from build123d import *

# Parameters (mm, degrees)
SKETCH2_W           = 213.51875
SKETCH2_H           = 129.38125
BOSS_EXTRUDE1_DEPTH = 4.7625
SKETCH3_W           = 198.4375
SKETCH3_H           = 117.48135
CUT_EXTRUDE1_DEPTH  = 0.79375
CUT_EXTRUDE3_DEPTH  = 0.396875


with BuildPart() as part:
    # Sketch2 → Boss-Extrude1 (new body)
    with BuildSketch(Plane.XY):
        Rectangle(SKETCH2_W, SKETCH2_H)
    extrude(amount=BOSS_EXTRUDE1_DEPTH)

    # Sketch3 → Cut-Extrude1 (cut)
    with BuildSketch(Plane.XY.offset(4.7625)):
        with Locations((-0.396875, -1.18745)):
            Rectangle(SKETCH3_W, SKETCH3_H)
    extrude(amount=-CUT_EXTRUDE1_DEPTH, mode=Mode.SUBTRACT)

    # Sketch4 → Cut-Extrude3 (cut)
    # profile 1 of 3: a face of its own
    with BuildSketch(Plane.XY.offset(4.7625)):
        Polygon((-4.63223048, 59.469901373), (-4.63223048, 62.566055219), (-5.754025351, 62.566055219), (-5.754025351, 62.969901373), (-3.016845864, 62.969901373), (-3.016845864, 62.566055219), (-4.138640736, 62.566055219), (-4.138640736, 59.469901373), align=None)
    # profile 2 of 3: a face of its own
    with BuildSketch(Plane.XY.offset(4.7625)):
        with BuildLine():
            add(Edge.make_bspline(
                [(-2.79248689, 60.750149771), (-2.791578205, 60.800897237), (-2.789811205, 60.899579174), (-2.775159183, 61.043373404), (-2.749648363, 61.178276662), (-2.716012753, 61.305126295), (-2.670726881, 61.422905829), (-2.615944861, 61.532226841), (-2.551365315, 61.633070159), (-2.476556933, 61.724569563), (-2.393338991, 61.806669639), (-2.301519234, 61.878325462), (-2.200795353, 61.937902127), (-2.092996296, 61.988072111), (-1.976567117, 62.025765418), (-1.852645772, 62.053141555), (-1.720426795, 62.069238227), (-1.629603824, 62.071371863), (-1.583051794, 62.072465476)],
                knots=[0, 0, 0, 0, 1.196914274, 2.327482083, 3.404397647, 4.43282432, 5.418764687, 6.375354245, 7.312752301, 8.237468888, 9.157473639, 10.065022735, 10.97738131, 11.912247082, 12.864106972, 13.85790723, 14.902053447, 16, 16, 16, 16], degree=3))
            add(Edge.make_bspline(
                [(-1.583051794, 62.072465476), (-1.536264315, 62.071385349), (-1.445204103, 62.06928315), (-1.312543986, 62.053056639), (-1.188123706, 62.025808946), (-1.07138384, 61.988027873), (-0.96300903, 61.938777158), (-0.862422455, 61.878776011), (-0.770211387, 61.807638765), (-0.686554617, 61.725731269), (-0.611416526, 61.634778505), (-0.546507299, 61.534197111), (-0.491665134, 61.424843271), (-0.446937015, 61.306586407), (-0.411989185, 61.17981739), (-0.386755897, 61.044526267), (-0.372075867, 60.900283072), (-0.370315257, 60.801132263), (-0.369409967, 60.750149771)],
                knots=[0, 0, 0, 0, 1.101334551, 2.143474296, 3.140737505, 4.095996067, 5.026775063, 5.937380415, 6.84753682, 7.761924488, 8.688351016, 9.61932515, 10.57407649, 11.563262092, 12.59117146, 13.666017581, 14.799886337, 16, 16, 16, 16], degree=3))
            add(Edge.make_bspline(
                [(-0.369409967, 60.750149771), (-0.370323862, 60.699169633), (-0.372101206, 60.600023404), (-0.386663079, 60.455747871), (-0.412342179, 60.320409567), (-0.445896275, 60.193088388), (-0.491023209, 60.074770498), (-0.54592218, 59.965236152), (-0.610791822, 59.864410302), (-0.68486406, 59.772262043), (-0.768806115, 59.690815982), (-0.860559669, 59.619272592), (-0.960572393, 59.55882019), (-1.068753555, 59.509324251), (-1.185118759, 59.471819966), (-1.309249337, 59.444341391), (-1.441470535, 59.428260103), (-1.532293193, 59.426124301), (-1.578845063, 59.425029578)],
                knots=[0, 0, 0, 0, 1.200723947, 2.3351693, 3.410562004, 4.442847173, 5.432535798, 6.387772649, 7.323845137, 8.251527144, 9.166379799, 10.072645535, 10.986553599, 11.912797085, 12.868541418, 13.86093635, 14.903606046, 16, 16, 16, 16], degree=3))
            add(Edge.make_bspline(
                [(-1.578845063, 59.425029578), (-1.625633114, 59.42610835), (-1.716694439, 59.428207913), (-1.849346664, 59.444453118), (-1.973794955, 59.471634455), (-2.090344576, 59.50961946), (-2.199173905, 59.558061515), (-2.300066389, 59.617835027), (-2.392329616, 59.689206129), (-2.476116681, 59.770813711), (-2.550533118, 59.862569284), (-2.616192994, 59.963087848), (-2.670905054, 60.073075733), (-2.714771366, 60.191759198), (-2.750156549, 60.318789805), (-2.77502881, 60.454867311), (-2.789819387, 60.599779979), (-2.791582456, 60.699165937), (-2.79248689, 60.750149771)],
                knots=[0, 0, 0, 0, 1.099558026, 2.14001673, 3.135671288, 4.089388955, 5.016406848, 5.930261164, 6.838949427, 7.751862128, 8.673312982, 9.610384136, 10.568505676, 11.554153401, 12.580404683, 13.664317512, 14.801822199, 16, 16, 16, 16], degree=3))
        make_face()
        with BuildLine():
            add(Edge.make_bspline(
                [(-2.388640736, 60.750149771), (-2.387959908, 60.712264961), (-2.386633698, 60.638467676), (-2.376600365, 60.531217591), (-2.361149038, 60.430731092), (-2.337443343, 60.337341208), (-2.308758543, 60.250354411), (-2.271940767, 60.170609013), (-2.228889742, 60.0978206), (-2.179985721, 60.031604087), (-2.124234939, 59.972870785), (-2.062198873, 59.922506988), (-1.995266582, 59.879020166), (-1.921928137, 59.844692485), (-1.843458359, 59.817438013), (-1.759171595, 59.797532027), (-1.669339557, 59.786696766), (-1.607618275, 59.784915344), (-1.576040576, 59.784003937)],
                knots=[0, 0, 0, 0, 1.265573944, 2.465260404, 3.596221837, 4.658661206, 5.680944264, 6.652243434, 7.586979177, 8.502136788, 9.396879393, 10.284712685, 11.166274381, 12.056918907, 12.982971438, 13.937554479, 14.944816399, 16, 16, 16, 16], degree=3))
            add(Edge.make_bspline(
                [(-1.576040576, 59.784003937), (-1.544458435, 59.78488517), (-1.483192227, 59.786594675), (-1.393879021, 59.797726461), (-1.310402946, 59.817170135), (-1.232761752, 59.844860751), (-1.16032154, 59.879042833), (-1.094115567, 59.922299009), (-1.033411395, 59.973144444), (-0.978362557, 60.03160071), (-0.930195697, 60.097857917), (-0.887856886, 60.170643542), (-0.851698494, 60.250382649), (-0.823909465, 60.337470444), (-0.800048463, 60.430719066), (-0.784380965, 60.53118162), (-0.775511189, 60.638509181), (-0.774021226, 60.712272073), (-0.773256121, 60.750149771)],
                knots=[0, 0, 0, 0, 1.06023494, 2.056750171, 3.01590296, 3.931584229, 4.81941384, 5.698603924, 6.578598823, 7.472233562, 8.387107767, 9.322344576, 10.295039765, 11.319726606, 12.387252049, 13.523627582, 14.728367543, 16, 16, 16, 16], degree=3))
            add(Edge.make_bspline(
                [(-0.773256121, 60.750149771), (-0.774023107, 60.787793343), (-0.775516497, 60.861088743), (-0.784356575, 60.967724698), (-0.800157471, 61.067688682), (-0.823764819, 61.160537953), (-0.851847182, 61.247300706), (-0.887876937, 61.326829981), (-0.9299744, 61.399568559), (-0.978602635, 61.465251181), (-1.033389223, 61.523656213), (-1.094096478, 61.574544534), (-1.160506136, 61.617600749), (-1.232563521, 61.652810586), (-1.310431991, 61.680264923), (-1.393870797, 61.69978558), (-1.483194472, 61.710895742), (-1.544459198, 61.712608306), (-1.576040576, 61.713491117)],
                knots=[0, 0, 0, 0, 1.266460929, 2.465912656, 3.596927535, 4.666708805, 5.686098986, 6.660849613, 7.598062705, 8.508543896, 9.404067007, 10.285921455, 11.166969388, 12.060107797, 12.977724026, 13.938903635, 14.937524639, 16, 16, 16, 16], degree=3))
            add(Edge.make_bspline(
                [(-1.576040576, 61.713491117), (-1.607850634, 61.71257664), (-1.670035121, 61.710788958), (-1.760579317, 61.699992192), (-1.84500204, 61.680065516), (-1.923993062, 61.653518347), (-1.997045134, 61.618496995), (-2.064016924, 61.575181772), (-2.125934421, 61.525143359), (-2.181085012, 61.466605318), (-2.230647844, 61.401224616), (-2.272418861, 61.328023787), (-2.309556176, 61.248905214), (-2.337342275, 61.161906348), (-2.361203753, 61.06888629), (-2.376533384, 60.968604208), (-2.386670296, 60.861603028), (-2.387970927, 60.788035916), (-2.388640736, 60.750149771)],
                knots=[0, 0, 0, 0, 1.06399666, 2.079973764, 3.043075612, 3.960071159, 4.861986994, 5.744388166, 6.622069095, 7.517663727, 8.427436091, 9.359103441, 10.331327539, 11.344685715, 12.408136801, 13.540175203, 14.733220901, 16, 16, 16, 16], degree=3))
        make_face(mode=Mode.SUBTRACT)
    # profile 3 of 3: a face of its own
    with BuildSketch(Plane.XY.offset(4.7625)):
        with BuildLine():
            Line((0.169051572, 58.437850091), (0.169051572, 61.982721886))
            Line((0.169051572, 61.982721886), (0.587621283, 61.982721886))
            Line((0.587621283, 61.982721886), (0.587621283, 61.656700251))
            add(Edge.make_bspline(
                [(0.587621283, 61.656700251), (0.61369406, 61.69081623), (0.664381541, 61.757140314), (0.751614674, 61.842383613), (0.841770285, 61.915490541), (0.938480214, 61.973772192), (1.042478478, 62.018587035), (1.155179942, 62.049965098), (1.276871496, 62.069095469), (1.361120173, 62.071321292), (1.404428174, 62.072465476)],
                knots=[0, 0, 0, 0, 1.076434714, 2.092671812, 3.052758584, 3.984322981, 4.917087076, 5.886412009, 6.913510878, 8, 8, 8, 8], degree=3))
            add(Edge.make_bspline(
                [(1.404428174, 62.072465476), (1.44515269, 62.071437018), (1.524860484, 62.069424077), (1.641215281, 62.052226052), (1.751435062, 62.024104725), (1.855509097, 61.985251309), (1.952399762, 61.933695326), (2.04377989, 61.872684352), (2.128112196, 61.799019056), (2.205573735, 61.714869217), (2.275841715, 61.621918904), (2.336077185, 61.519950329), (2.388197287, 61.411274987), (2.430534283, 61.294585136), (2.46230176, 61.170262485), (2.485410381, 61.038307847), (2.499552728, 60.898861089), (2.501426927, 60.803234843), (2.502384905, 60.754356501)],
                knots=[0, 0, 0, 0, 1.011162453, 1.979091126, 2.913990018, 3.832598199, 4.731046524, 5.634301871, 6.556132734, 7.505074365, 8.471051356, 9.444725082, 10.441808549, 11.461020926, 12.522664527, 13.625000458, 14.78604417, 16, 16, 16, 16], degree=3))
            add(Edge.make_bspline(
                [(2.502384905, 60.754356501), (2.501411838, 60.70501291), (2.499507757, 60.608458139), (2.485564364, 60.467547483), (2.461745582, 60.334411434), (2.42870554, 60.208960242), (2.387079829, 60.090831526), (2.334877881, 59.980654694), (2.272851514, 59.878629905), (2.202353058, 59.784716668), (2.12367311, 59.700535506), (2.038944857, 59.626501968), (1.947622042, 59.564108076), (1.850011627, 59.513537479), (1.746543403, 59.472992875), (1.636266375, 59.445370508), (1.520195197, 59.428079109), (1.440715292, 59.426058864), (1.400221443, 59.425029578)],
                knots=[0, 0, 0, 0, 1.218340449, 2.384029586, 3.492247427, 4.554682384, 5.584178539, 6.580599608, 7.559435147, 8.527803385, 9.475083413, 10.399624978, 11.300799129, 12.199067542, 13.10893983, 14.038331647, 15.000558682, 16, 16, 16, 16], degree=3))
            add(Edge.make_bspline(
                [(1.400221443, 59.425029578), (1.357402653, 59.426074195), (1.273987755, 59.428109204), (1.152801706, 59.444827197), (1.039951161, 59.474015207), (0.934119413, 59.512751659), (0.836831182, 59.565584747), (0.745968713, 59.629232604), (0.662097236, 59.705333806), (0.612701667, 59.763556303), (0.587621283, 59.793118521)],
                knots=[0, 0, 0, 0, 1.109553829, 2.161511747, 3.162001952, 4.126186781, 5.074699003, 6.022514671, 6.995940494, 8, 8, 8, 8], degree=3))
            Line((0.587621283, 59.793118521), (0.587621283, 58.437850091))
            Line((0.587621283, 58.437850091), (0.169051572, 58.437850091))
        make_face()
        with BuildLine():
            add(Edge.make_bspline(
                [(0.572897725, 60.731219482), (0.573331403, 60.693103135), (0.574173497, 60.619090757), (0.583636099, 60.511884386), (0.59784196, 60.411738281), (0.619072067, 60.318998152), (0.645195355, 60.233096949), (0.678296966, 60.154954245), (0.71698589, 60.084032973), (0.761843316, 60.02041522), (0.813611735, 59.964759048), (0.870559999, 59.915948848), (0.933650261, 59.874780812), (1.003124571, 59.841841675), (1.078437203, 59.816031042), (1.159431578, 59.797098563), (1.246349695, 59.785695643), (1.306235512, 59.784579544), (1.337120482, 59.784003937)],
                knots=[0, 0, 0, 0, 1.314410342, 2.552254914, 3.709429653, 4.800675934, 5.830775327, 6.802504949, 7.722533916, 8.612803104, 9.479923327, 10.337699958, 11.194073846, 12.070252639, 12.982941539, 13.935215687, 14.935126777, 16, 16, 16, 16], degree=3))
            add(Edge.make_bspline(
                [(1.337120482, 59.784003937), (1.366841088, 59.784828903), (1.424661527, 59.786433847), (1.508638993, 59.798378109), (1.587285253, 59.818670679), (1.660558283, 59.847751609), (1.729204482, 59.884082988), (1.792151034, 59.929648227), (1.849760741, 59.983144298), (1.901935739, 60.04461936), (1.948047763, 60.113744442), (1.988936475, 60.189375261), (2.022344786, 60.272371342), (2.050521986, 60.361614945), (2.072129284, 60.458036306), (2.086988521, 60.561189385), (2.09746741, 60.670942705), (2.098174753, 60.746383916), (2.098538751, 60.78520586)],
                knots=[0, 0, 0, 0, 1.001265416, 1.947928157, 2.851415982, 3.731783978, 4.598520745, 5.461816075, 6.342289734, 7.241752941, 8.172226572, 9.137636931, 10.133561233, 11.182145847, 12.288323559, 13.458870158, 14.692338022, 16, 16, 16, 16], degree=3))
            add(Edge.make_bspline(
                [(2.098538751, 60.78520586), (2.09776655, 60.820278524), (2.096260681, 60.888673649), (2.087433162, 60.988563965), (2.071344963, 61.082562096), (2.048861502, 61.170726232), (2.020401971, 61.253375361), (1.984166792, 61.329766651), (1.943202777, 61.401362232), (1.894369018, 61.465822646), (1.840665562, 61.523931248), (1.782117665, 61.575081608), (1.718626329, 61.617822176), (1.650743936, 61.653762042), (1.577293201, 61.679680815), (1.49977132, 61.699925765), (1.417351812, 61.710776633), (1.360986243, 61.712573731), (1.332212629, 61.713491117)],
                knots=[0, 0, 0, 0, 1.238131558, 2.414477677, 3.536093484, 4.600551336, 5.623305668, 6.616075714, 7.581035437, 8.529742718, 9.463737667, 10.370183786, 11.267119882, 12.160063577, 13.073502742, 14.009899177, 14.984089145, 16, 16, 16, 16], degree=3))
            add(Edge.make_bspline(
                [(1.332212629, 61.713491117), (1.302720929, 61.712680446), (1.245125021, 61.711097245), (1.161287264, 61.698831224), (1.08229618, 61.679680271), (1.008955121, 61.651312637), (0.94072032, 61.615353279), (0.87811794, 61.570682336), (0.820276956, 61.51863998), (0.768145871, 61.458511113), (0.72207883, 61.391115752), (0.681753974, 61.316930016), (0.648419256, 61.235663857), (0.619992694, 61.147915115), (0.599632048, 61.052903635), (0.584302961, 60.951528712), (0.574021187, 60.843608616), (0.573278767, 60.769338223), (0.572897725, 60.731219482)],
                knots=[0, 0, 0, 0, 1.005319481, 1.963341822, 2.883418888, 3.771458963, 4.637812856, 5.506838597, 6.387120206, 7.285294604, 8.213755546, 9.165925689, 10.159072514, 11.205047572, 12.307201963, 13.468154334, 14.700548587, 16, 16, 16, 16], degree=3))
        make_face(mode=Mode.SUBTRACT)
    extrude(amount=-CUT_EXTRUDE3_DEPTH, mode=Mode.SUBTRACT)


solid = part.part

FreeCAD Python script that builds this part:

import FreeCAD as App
import Part
import Sketcher
Q = App.Units.Quantity


def add_polygon(sketch, points):
    """Adds a closed chain of lines whose ends are joined by coincident constraints."""
    first, n = sketch.GeometryCount, len(points)
    for a, b in zip(points, points[1:] + points[:1]):
        sketch.addGeometry(Part.LineSegment(App.Vector(*a, 0), App.Vector(*b, 0)), False)
    for i in range(n):
        sketch.addConstraint(Sketcher.Constraint("Coincident", first + i, 2, first + (i + 1) % n, 1))

doc = App.newDocument("Part")
params = doc.addObject("Spreadsheet::Sheet", "Params")
for row, (alias, value) in enumerate([
    ("sketch1_width", "8.40625 in"),
    ("sketch1_height", "5.09375 in"),
    ("pad1_length", "0.1875 in"),
    ("sketch2_width", "7.8125 in"),
    ("pocket1_length", "0.03125 in"),
    ("pocket2_length", "0.015625 in"),
], start=1):
    params.set(f"A{row}", alias)
    params.set(f"B{row}", "=" + value)
    params.setAlias(f"B{row}", alias)

body = doc.addObject("PartDesign::Body", "Body")

# Sketch on XY plane
sketch1 = body.newObject("Sketcher::SketchObject", "Sketch")
sketch1.AttachmentSupport = (doc.getObject("XY_Plane"), [""])
sketch1.MapMode = "FlatFace"
add_polygon(sketch1, [(-107, 65), (-107, -65), (107, -65), (107, 65)])  # lines 0-3
sketch1.addConstraint([
    Sketcher.Constraint("Vertical", 0),
    Sketcher.Constraint("Horizontal", 1),
    Sketcher.Constraint("Vertical", 2),
    Sketcher.Constraint("Horizontal", 3),
    Sketcher.Constraint("Symmetric", 0, 2, 2, 2, -1, 1),
    Sketcher.Constraint("DistanceX", 1, 1, 1, 2, Q("8.40625 in")),
    Sketcher.Constraint("DistanceY", 0, 2, 0, 1, Q("5.09375 in")),
])
sketch1.setExpression("Constraints[9]", "Params.sketch1_width")
sketch1.setExpression("Constraints[10]", "Params.sketch1_height")
pad1 = body.newObject("PartDesign::Pad", "Pad")
pad1.Profile = sketch1
pad1.setExpression("Length", "Params.pad1_length")

# Sketch on XY plane
sketch2 = body.newObject("Sketcher::SketchObject", "Sketch001")
sketch2.AttachmentSupport = (doc.getObject("XY_Plane"), [""])
sketch2.MapMode = "FlatFace"
sketch2.AttachmentOffset = App.Placement(App.Vector(0, 0, 0.1875 * 25.4), App.Rotation())
add_polygon(sketch2, [(-100, 58), (-100, -60), (99, -60), (99, 58)])  # lines 0-3
sketch2.addConstraint([
    Sketcher.Constraint("Vertical", 0),
    Sketcher.Constraint("Horizontal", 1),
    Sketcher.Constraint("Vertical", 2),
    Sketcher.Constraint("Horizontal", 3),
    Sketcher.Constraint("DistanceX", 1, 1, 1, 2, Q("7.8125 in")),
    Sketcher.Constraint("DistanceX", 0, 2, -1, 1, Q("3.921875 in")),
    Sketcher.Constraint("DistanceY", 0, 2, -1, 1, Q("2.359375 in")),
    Sketcher.Constraint("DistanceY", 0, 2, 0, 1, 117.48135),
])
sketch2.setExpression("Constraints[8]", "Params.sketch2_width")
pocket1 = body.newObject("PartDesign::Pocket", "Pocket")
pocket1.Profile = sketch2
pocket1.setExpression("Length", "Params.pocket1_length")

# Sketch on XY plane
sketch3 = body.newObject("Sketcher::SketchObject", "Sketch002")
sketch3.AttachmentSupport = (doc.getObject("XY_Plane"), [""])
sketch3.MapMode = "FlatFace"
sketch3.AttachmentOffset = App.Placement(App.Vector(0, 0, 0.1875 * 25.4), App.Rotation())
add_polygon(sketch3, [(-4.63223, 62.566055), (-4.63223, 59.469901), (-4.138641, 59.469901), (-4.138641, 62.566055), (-3.016846, 62.566055), (-3.016846, 62.969901), (-5.754025, 62.969901), (-5.754025, 62.566055)])  # lines 0-7
sketch3.addGeometry(Part.BSplineCurve([App.Vector(-2.792487, 60.75015, 0), App.Vector(-2.791578, 60.800897, 0), App.Vector(-2.789811, 60.899579, 0), App.Vector(-2.775159, 61.043373, 0), App.Vector(-2.749648, 61.178277, 0), App.Vector(-2.716013, 61.305126, 0), App.Vector(-2.670727, 61.422906, 0), App.Vector(-2.615945, 61.532227, 0), App.Vector(-2.551365, 61.63307, 0), App.Vector(-2.476557, 61.72457, 0), App.Vector(-2.393339, 61.80667, 0), App.Vector(-2.301519, 61.878325, 0), App.Vector(-2.200795, 61.937902, 0), App.Vector(-2.092996, 61.988072, 0), App.Vector(-1.976567, 62.025765, 0), App.Vector(-1.852646, 62.053142, 0), App.Vector(-1.720427, 62.069238, 0), App.Vector(-1.629604, 62.071372, 0), App.Vector(-1.583052, 62.072465, 0)], [4, 1, 1, 1, 1, 1, 1, 1, 1, 1, 1, 1, 1, 1, 1, 1, 4], [0, 1.196914274, 2.327482083, 3.404397647, 4.43282432, 5.418764687, 6.375354245, 7.312752301, 8.237468888, 9.157473639, 10.065022735, 10.97738131, 11.912247082, 12.864106972, 13.85790723, 14.902053447, 16], False, 3, [1, 1, 1, 1, 1, 1, 1, 1, 1, 1, 1, 1, 1, 1, 1, 1, 1, 1, 1], False), False)  # 8
sketch3.addGeometry(Part.BSplineCurve([App.Vector(-1.578845, 59.42503, 0), App.Vector(-1.625633, 59.426108, 0), App.Vector(-1.716694, 59.428208, 0), App.Vector(-1.849347, 59.444453, 0), App.Vector(-1.973795, 59.471634, 0), App.Vector(-2.090345, 59.509619, 0), App.Vector(-2.199174, 59.558062, 0), App.Vector(-2.300066, 59.617835, 0), App.Vector(-2.39233, 59.689206, 0), App.Vector(-2.476117, 59.770814, 0), App.Vector(-2.550533, 59.862569, 0), App.Vector(-2.616193, 59.963088, 0), App.Vector(-2.670905, 60.073076, 0), App.Vector(-2.714771, 60.191759, 0), App.Vector(-2.750157, 60.31879, 0), App.Vector(-2.775029, 60.454867, 0), App.Vector(-2.789819, 60.59978, 0), App.Vector(-2.791582, 60.699166, 0), App.Vector(-2.792487, 60.75015, 0)], [4, 1, 1, 1, 1, 1, 1, 1, 1, 1, 1, 1, 1, 1, 1, 1, 4], [0, 1.099558026, 2.14001673, 3.135671288, 4.089388955, 5.016406848, 5.930261164, 6.838949427, 7.751862128, 8.673312982, 9.610384136, 10.568505676, 11.554153401, 12.580404683, 13.664317512, 14.801822199, 16], False, 3, [1, 1, 1, 1, 1, 1, 1, 1, 1, 1, 1, 1, 1, 1, 1, 1, 1, 1, 1], False), False)  # 9
sketch3.addGeometry(Part.BSplineCurve([App.Vector(-0.36941, 60.75015, 0), App.Vector(-0.370324, 60.69917, 0), App.Vector(-0.372101, 60.600023, 0), App.Vector(-0.386663, 60.455748, 0), App.Vector(-0.412342, 60.32041, 0), App.Vector(-0.445896, 60.193088, 0), App.Vector(-0.491023, 60.07477, 0), App.Vector(-0.545922, 59.965236, 0), App.Vector(-0.610792, 59.86441, 0), App.Vector(-0.684864, 59.772262, 0), App.Vector(-0.768806, 59.690816, 0), App.Vector(-0.86056, 59.619273, 0), App.Vector(-0.960572, 59.55882, 0), App.Vector(-1.068754, 59.509324, 0), App.Vector(-1.185119, 59.47182, 0), App.Vector(-1.309249, 59.444341, 0), App.Vector(-1.441471, 59.42826, 0), App.Vector(-1.532293, 59.426124, 0), App.Vector(-1.578845, 59.42503, 0)], [4, 1, 1, 1, 1, 1, 1, 1, 1, 1, 1, 1, 1, 1, 1, 1, 4], [0, 1.200723947, 2.3351693, 3.410562004, 4.442847173, 5.432535798, 6.387772649, 7.323845137, 8.251527144, 9.166379799, 10.072645535, 10.986553599, 11.912797085, 12.868541418, 13.86093635, 14.903606046, 16], False, 3, [1, 1, 1, 1, 1, 1, 1, 1, 1, 1, 1, 1, 1, 1, 1, 1, 1, 1, 1], False), False)  # 10
sketch3.addGeometry(Part.BSplineCurve([App.Vector(-1.583052, 62.072465, 0), App.Vector(-1.536264, 62.071385, 0), App.Vector(-1.445204, 62.069283, 0), App.Vector(-1.312544, 62.053057, 0), App.Vector(-1.188124, 62.025809, 0), App.Vector(-1.071384, 61.988028, 0), App.Vector(-0.963009, 61.938777, 0), App.Vector(-0.862422, 61.878776, 0), App.Vector(-0.770211, 61.807639, 0), App.Vector(-0.686555, 61.725731, 0), App.Vector(-0.611417, 61.634779, 0), App.Vector(-0.546507, 61.534197, 0), App.Vector(-0.491665, 61.424843, 0), App.Vector(-0.446937, 61.306586, 0), App.Vector(-0.411989, 61.179817, 0), App.Vector(-0.386756, 61.044526, 0), App.Vector(-0.372076, 60.900283, 0), App.Vector(-0.370315, 60.801132, 0), App.Vector(-0.36941, 60.75015, 0)], [4, 1, 1, 1, 1, 1, 1, 1, 1, 1, 1, 1, 1, 1, 1, 1, 4], [0, 1.101334551, 2.143474296, 3.140737505, 4.095996067, 5.026775063, 5.937380415, 6.84753682, 7.761924488, 8.688351016, 9.61932515, 10.57407649, 11.563262092, 12.59117146, 13.666017581, 14.799886337, 16], False, 3, [1, 1, 1, 1, 1, 1, 1, 1, 1, 1, 1, 1, 1, 1, 1, 1, 1, 1, 1], False), False)  # 11
sketch3.addGeometry(Part.BSplineCurve([App.Vector(-1.576041, 61.713491, 0), App.Vector(-1.607851, 61.712577, 0), App.Vector(-1.670035, 61.710789, 0), App.Vector(-1.760579, 61.699992, 0), App.Vector(-1.845002, 61.680066, 0), App.Vector(-1.923993, 61.653518, 0), App.Vector(-1.997045, 61.618497, 0), App.Vector(-2.064017, 61.575182, 0), App.Vector(-2.125934, 61.525143, 0), App.Vector(-2.181085, 61.466605, 0), App.Vector(-2.230648, 61.401225, 0), App.Vector(-2.272419, 61.328024, 0), App.Vector(-2.309556, 61.248905, 0), App.Vector(-2.337342, 61.161906, 0), App.Vector(-2.361204, 61.068886, 0), App.Vector(-2.376533, 60.968604, 0), App.Vector(-2.38667, 60.861603, 0), App.Vector(-2.387971, 60.788036, 0), App.Vector(-2.388641, 60.75015, 0)], [4, 1, 1, 1, 1, 1, 1, 1, 1, 1, 1, 1, 1, 1, 1, 1, 4], [0, 1.06399666, 2.079973764, 3.043075612, 3.960071159, 4.861986994, 5.744388166, 6.622069095, 7.517663727, 8.427436091, 9.359103441, 10.331327539, 11.344685715, 12.408136801, 13.540175203, 14.733220901, 16], False, 3, [1, 1, 1, 1, 1, 1, 1, 1, 1, 1, 1, 1, 1, 1, 1, 1, 1, 1, 1], False), False)  # 12
sketch3.addGeometry(Part.BSplineCurve([App.Vector(-0.773256, 60.75015, 0), App.Vector(-0.774023, 60.787793, 0), App.Vector(-0.775516, 60.861089, 0), App.Vector(-0.784357, 60.967725, 0), App.Vector(-0.800157, 61.067689, 0), App.Vector(-0.823765, 61.160538, 0), App.Vector(-0.851847, 61.247301, 0), App.Vector(-0.887877, 61.32683, 0), App.Vector(-0.929974, 61.399569, 0), App.Vector(-0.978603, 61.465251, 0), App.Vector(-1.033389, 61.523656, 0), App.Vector(-1.094096, 61.574545, 0), App.Vector(-1.160506, 61.617601, 0), App.Vector(-1.232564, 61.652811, 0), App.Vector(-1.310432, 61.680265, 0), App.Vector(-1.393871, 61.699786, 0), App.Vector(-1.483194, 61.710896, 0), App.Vector(-1.544459, 61.712608, 0), App.Vector(-1.576041, 61.713491, 0)], [4, 1, 1, 1, 1, 1, 1, 1, 1, 1, 1, 1, 1, 1, 1, 1, 4], [0, 1.266460929, 2.465912656, 3.596927535, 4.666708805, 5.686098986, 6.660849613, 7.598062705, 8.508543896, 9.404067007, 10.285921455, 11.166969388, 12.060107797, 12.977724026, 13.938903635, 14.937524639, 16], False, 3, [1, 1, 1, 1, 1, 1, 1, 1, 1, 1, 1, 1, 1, 1, 1, 1, 1, 1, 1], False), False)  # 13
sketch3.addGeometry(Part.BSplineCurve([App.Vector(-1.576041, 59.784004, 0), App.Vector(-1.544458, 59.784885, 0), App.Vector(-1.483192, 59.786595, 0), App.Vector(-1.393879, 59.797726, 0), App.Vector(-1.310403, 59.81717, 0), App.Vector(-1.232762, 59.844861, 0), App.Vector(-1.160322, 59.879043, 0), App.Vector(-1.094116, 59.922299, 0), App.Vector(-1.033411, 59.973144, 0), App.Vector(-0.978363, 60.031601, 0), App.Vector(-0.930196, 60.097858, 0), App.Vector(-0.887857, 60.170644, 0), App.Vector(-0.851698, 60.250383, 0), App.Vector(-0.823909, 60.33747, 0), App.Vector(-0.800048, 60.430719, 0), App.Vector(-0.784381, 60.531182, 0), App.Vector(-0.775511, 60.638509, 0), App.Vector(-0.774021, 60.712272, 0), App.Vector(-0.773256, 60.75015, 0)], [4, 1, 1, 1, 1, 1, 1, 1, 1, 1, 1, 1, 1, 1, 1, 1, 4], [0, 1.06023494, 2.056750171, 3.01590296, 3.931584229, 4.81941384, 5.698603924, 6.578598823, 7.472233562, 8.387107767, 9.322344576, 10.295039765, 11.319726606, 12.387252049, 13.523627582, 14.728367543, 16], False, 3, [1, 1, 1, 1, 1, 1, 1, 1, 1, 1, 1, 1, 1, 1, 1, 1, 1, 1, 1], False), False)  # 14
sketch3.addGeometry(Part.BSplineCurve([App.Vector(-2.388641, 60.75015, 0), App.Vector(-2.38796, 60.712265, 0), App.Vector(-2.386634, 60.638468, 0), App.Vector(-2.3766, 60.531218, 0), App.Vector(-2.361149, 60.430731, 0), App.Vector(-2.337443, 60.337341, 0), App.Vector(-2.308759, 60.250354, 0), App.Vector(-2.271941, 60.170609, 0), App.Vector(-2.22889, 60.097821, 0), App.Vector(-2.179986, 60.031604, 0), App.Vector(-2.124235, 59.972871, 0), App.Vector(-2.062199, 59.922507, 0), App.Vector(-1.995267, 59.87902, 0), App.Vector(-1.921928, 59.844692, 0), App.Vector(-1.843458, 59.817438, 0), App.Vector(-1.759172, 59.797532, 0), App.Vector(-1.66934, 59.786697, 0), App.Vector(-1.607618, 59.784915, 0), App.Vector(-1.576041, 59.784004, 0)], [4, 1, 1, 1, 1, 1, 1, 1, 1, 1, 1, 1, 1, 1, 1, 1, 4], [0, 1.265573944, 2.465260404, 3.596221837, 4.658661206, 5.680944264, 6.652243434, 7.586979177, 8.502136788, 9.396879393, 10.284712685, 11.166274381, 12.056918907, 12.982971438, 13.937554479, 14.944816399, 16], False, 3, [1, 1, 1, 1, 1, 1, 1, 1, 1, 1, 1, 1, 1, 1, 1, 1, 1, 1, 1], False), False)  # 15
sketch3.addGeometry(Part.LineSegment(App.Vector(0.169052, 61.982722, 0), App.Vector(0.169052, 58.43785, 0)), False)  # 16
sketch3.addGeometry(Part.LineSegment(App.Vector(0.169052, 58.43785, 0), App.Vector(0.587621, 58.43785, 0)), False)  # 17
sketch3.addGeometry(Part.LineSegment(App.Vector(0.587621, 58.43785, 0), App.Vector(0.587621, 59.793119, 0)), False)  # 18
sketch3.addGeometry(Part.BSplineCurve([App.Vector(1.400221, 59.42503, 0), App.Vector(1.357403, 59.426074, 0), App.Vector(1.273988, 59.428109, 0), App.Vector(1.152802, 59.444827, 0), App.Vector(1.039951, 59.474015, 0), App.Vector(0.934119, 59.512752, 0), App.Vector(0.836831, 59.565585, 0), App.Vector(0.745969, 59.629233, 0), App.Vector(0.662097, 59.705334, 0), App.Vector(0.612702, 59.763556, 0), App.Vector(0.587621, 59.793119, 0)], [4, 1, 1, 1, 1, 1, 1, 1, 4], [0, 1.109553829, 2.161511747, 3.162001952, 4.126186781, 5.074699003, 6.022514671, 6.995940494, 8], False, 3, [1, 1, 1, 1, 1, 1, 1, 1, 1, 1, 1], False), False)  # 19
sketch3.addGeometry(Part.BSplineCurve([App.Vector(2.502385, 60.754357, 0), App.Vector(2.501412, 60.705013, 0), App.Vector(2.499508, 60.608458, 0), App.Vector(2.485564, 60.467547, 0), App.Vector(2.461746, 60.334411, 0), App.Vector(2.428706, 60.20896, 0), App.Vector(2.38708, 60.090832, 0), App.Vector(2.334878, 59.980655, 0), App.Vector(2.272852, 59.87863, 0), App.Vector(2.202353, 59.784717, 0), App.Vector(2.123673, 59.700536, 0), App.Vector(2.038945, 59.626502, 0), App.Vector(1.947622, 59.564108, 0), App.Vector(1.850012, 59.513537, 0), App.Vector(1.746543, 59.472993, 0), App.Vector(1.636266, 59.445371, 0), App.Vector(1.520195, 59.428079, 0), App.Vector(1.440715, 59.426059, 0), App.Vector(1.400221, 59.42503, 0)], [4, 1, 1, 1, 1, 1, 1, 1, 1, 1, 1, 1, 1, 1, 1, 1, 4], [0, 1.218340449, 2.384029586, 3.492247427, 4.554682384, 5.584178539, 6.580599608, 7.559435147, 8.527803385, 9.475083413, 10.399624978, 11.300799129, 12.199067542, 13.10893983, 14.038331647, 15.000558682, 16], False, 3, [1, 1, 1, 1, 1, 1, 1, 1, 1, 1, 1, 1, 1, 1, 1, 1, 1, 1, 1], False), False)  # 20
sketch3.addGeometry(Part.BSplineCurve([App.Vector(1.404428, 62.072465, 0), App.Vector(1.445153, 62.071437, 0), App.Vector(1.52486, 62.069424, 0), App.Vector(1.641215, 62.052226, 0), App.Vector(1.751435, 62.024105, 0), App.Vector(1.855509, 61.985251, 0), App.Vector(1.9524, 61.933695, 0), App.Vector(2.04378, 61.872684, 0), App.Vector(2.128112, 61.799019, 0), App.Vector(2.205574, 61.714869, 0), App.Vector(2.275842, 61.621919, 0), App.Vector(2.336077, 61.51995, 0), App.Vector(2.388197, 61.411275, 0), App.Vector(2.430534, 61.294585, 0), App.Vector(2.462302, 61.170262, 0), App.Vector(2.48541, 61.038308, 0), App.Vector(2.499553, 60.898861, 0), App.Vector(2.501427, 60.803235, 0), App.Vector(2.502385, 60.754357, 0)], [4, 1, 1, 1, 1, 1, 1, 1, 1, 1, 1, 1, 1, 1, 1, 1, 4], [0, 1.011162453, 1.979091126, 2.913990018, 3.832598199, 4.731046524, 5.634301871, 6.556132734, 7.505074365, 8.471051356, 9.444725082, 10.441808549, 11.461020926, 12.522664527, 13.625000458, 14.78604417, 16], False, 3, [1, 1, 1, 1, 1, 1, 1, 1, 1, 1, 1, 1, 1, 1, 1, 1, 1, 1, 1], False), False)  # 21
sketch3.addGeometry(Part.BSplineCurve([App.Vector(0.587621, 61.6567, 0), App.Vector(0.613694, 61.690816, 0), App.Vector(0.664382, 61.75714, 0), App.Vector(0.751615, 61.842384, 0), App.Vector(0.84177, 61.915491, 0), App.Vector(0.93848, 61.973772, 0), App.Vector(1.042478, 62.018587, 0), App.Vector(1.15518, 62.049965, 0), App.Vector(1.276871, 62.069095, 0), App.Vector(1.36112, 62.071321, 0), App.Vector(1.404428, 62.072465, 0)], [4, 1, 1, 1, 1, 1, 1, 1, 4], [0, 1.076434714, 2.092671812, 3.052758584, 3.984322981, 4.917087076, 5.886412009, 6.913510878, 8], False, 3, [1, 1, 1, 1, 1, 1, 1, 1, 1, 1, 1], False), False)  # 22
sketch3.addGeometry(Part.LineSegment(App.Vector(0.587621, 61.6567, 0), App.Vector(0.587621, 61.982722, 0)), False)  # 23
sketch3.addGeometry(Part.LineSegment(App.Vector(0.587621, 61.982722, 0), App.Vector(0.169052, 61.982722, 0)), False)  # 24
sketch3.addGeometry(Part.BSplineCurve([App.Vector(1.332213, 61.713491, 0), App.Vector(1.302721, 61.71268, 0), App.Vector(1.245125, 61.711097, 0), App.Vector(1.161287, 61.698831, 0), App.Vector(1.082296, 61.67968, 0), App.Vector(1.008955, 61.651313, 0), App.Vector(0.94072, 61.615353, 0), App.Vector(0.878118, 61.570682, 0), App.Vector(0.820277, 61.51864, 0), App.Vector(0.768146, 61.458511, 0), App.Vector(0.722079, 61.391116, 0), App.Vector(0.681754, 61.31693, 0), App.Vector(0.648419, 61.235664, 0), App.Vector(0.619993, 61.147915, 0), App.Vector(0.599632, 61.052904, 0), App.Vector(0.584303, 60.951529, 0), App.Vector(0.574021, 60.843609, 0), App.Vector(0.573279, 60.769338, 0), App.Vector(0.572898, 60.731219, 0)], [4, 1, 1, 1, 1, 1, 1, 1, 1, 1, 1, 1, 1, 1, 1, 1, 4], [0, 1.005319481, 1.963341822, 2.883418888, 3.771458963, 4.637812856, 5.506838597, 6.387120206, 7.285294604, 8.213755546, 9.165925689, 10.159072514, 11.205047572, 12.307201963, 13.468154334, 14.700548587, 16], False, 3, [1, 1, 1, 1, 1, 1, 1, 1, 1, 1, 1, 1, 1, 1, 1, 1, 1, 1, 1], False), False)  # 25
sketch3.addGeometry(Part.BSplineCurve([App.Vector(2.098539, 60.785206, 0), App.Vector(2.097767, 60.820279, 0), App.Vector(2.096261, 60.888674, 0), App.Vector(2.087433, 60.988564, 0), App.Vector(2.071345, 61.082562, 0), App.Vector(2.048862, 61.170726, 0), App.Vector(2.020402, 61.253375, 0), App.Vector(1.984167, 61.329767, 0), App.Vector(1.943203, 61.401362, 0), App.Vector(1.894369, 61.465823, 0), App.Vector(1.840666, 61.523931, 0), App.Vector(1.782118, 61.575082, 0), App.Vector(1.718626, 61.617822, 0), App.Vector(1.650744, 61.653762, 0), App.Vector(1.577293, 61.679681, 0), App.Vector(1.499771, 61.699926, 0), App.Vector(1.417352, 61.710777, 0), App.Vector(1.360986, 61.712574, 0), App.Vector(1.332213, 61.713491, 0)], [4, 1, 1, 1, 1, 1, 1, 1, 1, 1, 1, 1, 1, 1, 1, 1, 4], [0, 1.238131558, 2.414477677, 3.536093484, 4.600551336, 5.623305668, 6.616075714, 7.581035437, 8.529742718, 9.463737667, 10.370183786, 11.267119882, 12.160063577, 13.073502742, 14.009899177, 14.984089145, 16], False, 3, [1, 1, 1, 1, 1, 1, 1, 1, 1, 1, 1, 1, 1, 1, 1, 1, 1, 1, 1], False), False)  # 26
sketch3.addGeometry(Part.BSplineCurve([App.Vector(1.33712, 59.784004, 0), App.Vector(1.366841, 59.784829, 0), App.Vector(1.424662, 59.786434, 0), App.Vector(1.508639, 59.798378, 0), App.Vector(1.587285, 59.818671, 0), App.Vector(1.660558, 59.847752, 0), App.Vector(1.729204, 59.884083, 0), App.Vector(1.792151, 59.929648, 0), App.Vector(1.849761, 59.983144, 0), App.Vector(1.901936, 60.044619, 0), App.Vector(1.948048, 60.113744, 0), App.Vector(1.988936, 60.189375, 0), App.Vector(2.022345, 60.272371, 0), App.Vector(2.050522, 60.361615, 0), App.Vector(2.072129, 60.458036, 0), App.Vector(2.086989, 60.561189, 0), App.Vector(2.097467, 60.670943, 0), App.Vector(2.098175, 60.746384, 0), App.Vector(2.098539, 60.785206, 0)], [4, 1, 1, 1, 1, 1, 1, 1, 1, 1, 1, 1, 1, 1, 1, 1, 4], [0, 1.001265416, 1.947928157, 2.851415982, 3.731783978, 4.598520745, 5.461816075, 6.342289734, 7.241752941, 8.172226572, 9.137636931, 10.133561233, 11.182145847, 12.288323559, 13.458870158, 14.692338022, 16], False, 3, [1, 1, 1, 1, 1, 1, 1, 1, 1, 1, 1, 1, 1, 1, 1, 1, 1, 1, 1], False), False)  # 27
sketch3.addGeometry(Part.BSplineCurve([App.Vector(0.572898, 60.731219, 0), App.Vector(0.573331, 60.693103, 0), App.Vector(0.574173, 60.619091, 0), App.Vector(0.583636, 60.511884, 0), App.Vector(0.597842, 60.411738, 0), App.Vector(0.619072, 60.318998, 0), App.Vector(0.645195, 60.233097, 0), App.Vector(0.678297, 60.154954, 0), App.Vector(0.716986, 60.084033, 0), App.Vector(0.761843, 60.020415, 0), App.Vector(0.813612, 59.964759, 0), App.Vector(0.87056, 59.915949, 0), App.Vector(0.93365, 59.874781, 0), App.Vector(1.003125, 59.841842, 0), App.Vector(1.078437, 59.816031, 0), App.Vector(1.159432, 59.797099, 0), App.Vector(1.24635, 59.785696, 0), App.Vector(1.306236, 59.78458, 0), App.Vector(1.33712, 59.784004, 0)], [4, 1, 1, 1, 1, 1, 1, 1, 1, 1, 1, 1, 1, 1, 1, 1, 4], [0, 1.314410342, 2.552254914, 3.709429653, 4.800675934, 5.830775327, 6.802504949, 7.722533916, 8.612803104, 9.479923327, 10.337699958, 11.194073846, 12.070252639, 12.982941539, 13.935215687, 14.935126777, 16], False, 3, [1, 1, 1, 1, 1, 1, 1, 1, 1, 1, 1, 1, 1, 1, 1, 1, 1, 1, 1], False), False)  # 28
sketch3.addConstraint([
    Sketcher.Constraint("Block", 8),
    Sketcher.Constraint("Block", 9),
    Sketcher.Constraint("Block", 10),
    Sketcher.Constraint("Block", 11),
    Sketcher.Constraint("Block", 12),
    Sketcher.Constraint("Block", 13),
    Sketcher.Constraint("Block", 14),
    Sketcher.Constraint("Block", 15),
    Sketcher.Constraint("Block", 19),
    Sketcher.Constraint("Block", 20),
    Sketcher.Constraint("Block", 21),
    Sketcher.Constraint("Block", 22),
    Sketcher.Constraint("Block", 25),
    Sketcher.Constraint("Block", 26),
    Sketcher.Constraint("Block", 27),
    Sketcher.Constraint("Block", 28),
    Sketcher.Constraint("Coincident", 16, 2, 17, 1),
    Sketcher.Constraint("Coincident", 17, 2, 18, 1),
    Sketcher.Constraint("Coincident", 18, 2, 19, 2),
    Sketcher.Constraint("Coincident", 22, 1, 23, 1),
    Sketcher.Constraint("Coincident", 23, 2, 24, 1),
    Sketcher.Constraint("Coincident", 24, 2, 16, 1),
    Sketcher.Constraint("Vertical", 0),
    Sketcher.Constraint("Horizontal", 1),
    Sketcher.Constraint("Vertical", 2),
    Sketcher.Constraint("Horizontal", 3),
    Sketcher.Constraint("Vertical", 4),
    Sketcher.Constraint("Horizontal", 5),
    Sketcher.Constraint("Vertical", 6),
    Sketcher.Constraint("Horizontal", 7),
    Sketcher.Constraint("Vertical", 16),
    Sketcher.Constraint("Horizontal", 17),
    Sketcher.Constraint("Vertical", 18),
    Sketcher.Constraint("Vertical", 23),
    Sketcher.Constraint("Horizontal", 24),
    Sketcher.Constraint("Horizontal", 3, 2, 6, 2),
    Sketcher.Constraint("Equal", 3, 7),
    Sketcher.Constraint("DistanceX", 1, 1, 1, 2, 0.49359),
    Sketcher.Constraint("DistanceX", 5, 2, 5, 1, 2.737179),
    Sketcher.Constraint("DistanceX", 17, 1, 17, 2, 0.41857),
    Sketcher.Constraint("DistanceY", 16, 2, 16, 1, 3.544872),
    Sketcher.Constraint("DistanceY", 18, 1, 18, 2, 1.355268),
    Sketcher.Constraint("DistanceY", -1, 1, 0, 2, 59.469901),
    Sketcher.Constraint("DistanceY", -1, 1, 4, 2, 62.969901),
    Sketcher.Constraint("DistanceY", 0, 2, 0, 1, 3.096154),
    Sketcher.Constraint("DistanceX", 0, 2, -1, 1, 4.63223),
])
pocket2 = body.newObject("PartDesign::Pocket", "Pocket001")
pocket2.Profile = sketch3
pocket2.setExpression("Length", "Params.pocket2_length")

doc.recompute()
